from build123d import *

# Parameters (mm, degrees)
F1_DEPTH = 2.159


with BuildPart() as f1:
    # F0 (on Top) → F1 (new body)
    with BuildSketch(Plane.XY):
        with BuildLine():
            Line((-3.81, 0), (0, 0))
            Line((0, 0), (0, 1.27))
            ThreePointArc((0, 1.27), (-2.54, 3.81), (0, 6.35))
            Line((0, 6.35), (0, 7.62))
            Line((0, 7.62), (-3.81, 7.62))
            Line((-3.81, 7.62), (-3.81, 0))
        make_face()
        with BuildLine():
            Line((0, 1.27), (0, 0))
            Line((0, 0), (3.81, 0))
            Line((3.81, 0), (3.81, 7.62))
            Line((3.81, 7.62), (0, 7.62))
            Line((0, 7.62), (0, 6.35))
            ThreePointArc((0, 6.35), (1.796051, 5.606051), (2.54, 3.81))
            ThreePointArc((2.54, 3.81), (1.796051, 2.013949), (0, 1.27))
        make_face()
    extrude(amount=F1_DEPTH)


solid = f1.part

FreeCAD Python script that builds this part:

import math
import FreeCAD as App
import Part
import Sketcher
Q = App.Units.Quantity


def add_polygon(sketch, points):
    """Adds a closed chain of lines whose ends are joined by coincident constraints."""
    first, n = sketch.GeometryCount, len(points)
    for a, b in zip(points, points[1:] + points[:1]):
        sketch.addGeometry(Part.LineSegment(App.Vector(*a, 0), App.Vector(*b, 0)), False)
    for i in range(n):
        sketch.addConstraint(Sketcher.Constraint("Coincident", first + i, 2, first + (i + 1) % n, 1))

doc = App.newDocument("Part")
body = doc.addObject("PartDesign::Body", "Body")

sketch1 = body.newObject("Sketcher::SketchObject", "Sketch")
sketch1.AttachmentSupport = (doc.getObject("XY_Plane"), [""])
sketch1.MapMode = "FlatFace"
add_polygon(sketch1, [(-3.81, 0), (3.81, 0), (3.81, 7.62), (-3.81, 7.62)])
sketch1.addGeometry(Part.ArcOfCircle(Part.Circle(App.Vector(0, 3.81, 0), App.Vector(0, 0, 1), 2.54), math.radians(90), math.radians(270)), False)
sketch1.addGeometry(Part.ArcOfCircle(Part.Circle(App.Vector(-0.000001, 3.809999, 0), App.Vector(0, 0, 1), 2.540001), math.radians(0.000017), math.radians(89.999983)), False)
sketch1.addGeometry(Part.ArcOfCircle(Part.Circle(App.Vector(-0.000001, 3.810001, 0), App.Vector(0, 0, 1), 2.540001), math.radians(-89.999983), math.radians(-0.000017)), False)
sketch1.addConstraint([
    Sketcher.Constraint("Tangent", 4, 1, 5, 2),
    Sketcher.Constraint("Tangent", 5, 1, 6, 2),
    Sketcher.Constraint("Tangent", 6, 1, 4, 2),
    Sketcher.Constraint("Horizontal", 0),
    Sketcher.Constraint("Vertical", 1),
    Sketcher.Constraint("Horizontal", 2),
    Sketcher.Constraint("Vertical", 3),
    Sketcher.Constraint("Symmetric", 0, 2, 3, 2, -1, 1),
    Sketcher.Constraint("PointOnObject", 4, 3, -2),
    Sketcher.Constraint("PointOnObject", 4, 1, -2),
    Sketcher.Constraint("PointOnObject", 6, 1, -2),
    Sketcher.Constraint("Horizontal", 6, 3, 5, 1),
    Sketcher.Constraint("Equal", 2, 1),
    Sketcher.Constraint("Radius", 4, Q("0.1 in")),
    Sketcher.Constraint("DistanceX", 0, 1, 0, 2, Q("0.3 in")),
    Sketcher.Constraint("DistanceY", -1, 1, 4, 3, Q("0.15 in")),
])
pad1 = body.newObject("PartDesign::Pad", "Pad")
pad1.Profile = sketch1
pad1.Length = Q("0.085 in")

doc.recompute()
